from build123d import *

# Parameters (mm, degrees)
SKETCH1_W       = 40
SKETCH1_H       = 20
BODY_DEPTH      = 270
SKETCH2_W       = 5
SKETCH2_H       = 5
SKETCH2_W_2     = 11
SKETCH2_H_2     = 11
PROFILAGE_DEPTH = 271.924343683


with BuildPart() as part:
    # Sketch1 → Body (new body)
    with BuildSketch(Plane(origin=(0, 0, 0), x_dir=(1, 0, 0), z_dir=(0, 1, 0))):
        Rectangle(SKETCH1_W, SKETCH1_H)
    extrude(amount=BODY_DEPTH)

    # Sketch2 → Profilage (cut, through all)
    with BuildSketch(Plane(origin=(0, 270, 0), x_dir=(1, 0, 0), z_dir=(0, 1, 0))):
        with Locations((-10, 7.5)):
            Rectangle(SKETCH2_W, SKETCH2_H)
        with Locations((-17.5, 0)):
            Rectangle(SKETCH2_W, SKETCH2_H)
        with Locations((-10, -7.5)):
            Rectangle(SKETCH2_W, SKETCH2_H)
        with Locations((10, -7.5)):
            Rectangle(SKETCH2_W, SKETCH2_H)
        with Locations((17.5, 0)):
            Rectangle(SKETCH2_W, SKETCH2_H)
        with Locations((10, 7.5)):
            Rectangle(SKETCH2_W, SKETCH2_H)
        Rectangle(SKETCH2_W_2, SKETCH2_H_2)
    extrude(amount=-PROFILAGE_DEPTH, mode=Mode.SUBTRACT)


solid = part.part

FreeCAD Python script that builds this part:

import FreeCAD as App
import Part
import Sketcher

V = App.Vector
Q = App.Units.Quantity

doc = App.newDocument("Part")
params = doc.addObject("Spreadsheet::Sheet", "Params")
for row, (alias, value) in enumerate([
    ("sketch1_width", "40 mm"),
    ("sketch1_height", "20 mm"),
    ("pad1_length", "270 mm"),
    ("sketch2_width", "5 mm"),
    ("sketch2_width2", "11 mm"),
], start=1):
    params.set(f"A{row}", alias)
    params.set(f"B{row}", "=" + value)
    params.setAlias(f"B{row}", alias)

body = doc.addObject("PartDesign::Body", "Body")

# Sketch on XZ plane
sketch1 = doc.addObject("Sketcher::SketchObject", "Sketch")
body.addObject(sketch1)
sketch1.AttachmentSupport = (doc.XZ_Plane, [""])
sketch1.MapMode = "FlatFace"
sketch1.addGeometry(Part.LineSegment(V(-20, -10, 0), V(-20, 10, 0)), False)
sketch1.addGeometry(Part.LineSegment(V(-20, 10, 0), V(20, 10, 0)), False)
sketch1.addGeometry(Part.LineSegment(V(20, 10, 0), V(20, -10, 0)), False)
sketch1.addGeometry(Part.LineSegment(V(20, -10, 0), V(-20, -10, 0)), False)
sketch1.addConstraint(Sketcher.Constraint("Coincident", 0, 2, 1, 1))
sketch1.addConstraint(Sketcher.Constraint("Coincident", 1, 2, 2, 1))
sketch1.addConstraint(Sketcher.Constraint("Coincident", 2, 2, 3, 1))
sketch1.addConstraint(Sketcher.Constraint("Coincident", 3, 2, 0, 1))
sketch1.addConstraint(Sketcher.Constraint("Vertical", 0))
sketch1.addConstraint(Sketcher.Constraint("Horizontal", 1))
sketch1.addConstraint(Sketcher.Constraint("Vertical", 2))
sketch1.addConstraint(Sketcher.Constraint("Horizontal", 3))
sketch1.addConstraint(Sketcher.Constraint("Symmetric", 0, 2, 2, 2, -1, 1))
sketch1.addConstraint(Sketcher.Constraint("DistanceX", 1, 1, 1, 2, Q("40 mm")))
sketch1.addConstraint(Sketcher.Constraint("DistanceY", 0, 1, 0, 2, Q("20 mm")))
sketch1.setExpression("Constraints[9]", "Params.sketch1_width")
sketch1.setExpression("Constraints[10]", "Params.sketch1_height")
pad1 = doc.addObject("PartDesign::Pad", "Pad")
body.addObject(pad1)
pad1.Profile = sketch1
pad1.setExpression("Length", "Params.pad1_length")
pad1.Reversed = True

# Sketch on XZ plane
sketch2 = doc.addObject("Sketcher::SketchObject", "Sketch001")
body.addObject(sketch2)
sketch2.AttachmentSupport = (doc.XZ_Plane, [""])
sketch2.MapMode = "FlatFace"
sketch2.AttachmentOffset = App.Placement(V(0, 0, -270), App.Rotation())
sketch2.addGeometry(Part.LineSegment(V(-12, -10, 0), V(-12, -5, 0)), False)
sketch2.addGeometry(Part.LineSegment(V(-12, -5, 0), V(-8, -5, 0)), False)
sketch2.addGeometry(Part.LineSegment(V(-8, -5, 0), V(-8, -10, 0)), False)
sketch2.addGeometry(Part.LineSegment(V(-8, -10, 0), V(-12, -10, 0)), False)
sketch2.addGeometry(Part.LineSegment(V(-20, -2, 0), V(-20, 2, 0)), False)
sketch2.addGeometry(Part.LineSegment(V(-20, 2, 0), V(-15, 2, 0)), False)
sketch2.addGeometry(Part.LineSegment(V(-15, 2, 0), V(-15, -2, 0)), False)
sketch2.addGeometry(Part.LineSegment(V(-15, -2, 0), V(-20, -2, 0)), False)
sketch2.addGeometry(Part.LineSegment(V(-12, 5, 0), V(-12, 10, 0)), False)
sketch2.addGeometry(Part.LineSegment(V(-12, 10, 0), V(-8, 10, 0)), False)
sketch2.addGeometry(Part.LineSegment(V(-8, 10, 0), V(-8, 5, 0)), False)
sketch2.addGeometry(Part.LineSegment(V(-8, 5, 0), V(-12, 5, 0)), False)
sketch2.addGeometry(Part.LineSegment(V(8, 5, 0), V(8, 10, 0)), False)
sketch2.addGeometry(Part.LineSegment(V(8, 10, 0), V(12, 10, 0)), False)
sketch2.addGeometry(Part.LineSegment(V(12, 10, 0), V(12, 5, 0)), False)
sketch2.addGeometry(Part.LineSegment(V(12, 5, 0), V(8, 5, 0)), False)
sketch2.addGeometry(Part.LineSegment(V(15, -2, 0), V(15, 2, 0)), False)
sketch2.addGeometry(Part.LineSegment(V(15, 2, 0), V(20, 2, 0)), False)
sketch2.addGeometry(Part.LineSegment(V(20, 2, 0), V(20, -2, 0)), False)
sketch2.addGeometry(Part.LineSegment(V(20, -2, 0), V(15, -2, 0)), False)
sketch2.addGeometry(Part.LineSegment(V(8, -10, 0), V(8, -5, 0)), False)
sketch2.addGeometry(Part.LineSegment(V(8, -5, 0), V(12, -5, 0)), False)
sketch2.addGeometry(Part.LineSegment(V(12, -5, 0), V(12, -10, 0)), False)
sketch2.addGeometry(Part.LineSegment(V(12, -10, 0), V(8, -10, 0)), False)
sketch2.addGeometry(Part.LineSegment(V(-6, -6, 0), V(-6, 6, 0)), False)
sketch2.addGeometry(Part.LineSegment(V(-6, 6, 0), V(6, 6, 0)), False)
sketch2.addGeometry(Part.LineSegment(V(6, 6, 0), V(6, -6, 0)), False)
sketch2.addGeometry(Part.LineSegment(V(6, -6, 0), V(-6, -6, 0)), False)
sketch2.addConstraint(Sketcher.Constraint("Coincident", 0, 2, 1, 1))
sketch2.addConstraint(Sketcher.Constraint("Coincident", 1, 2, 2, 1))
sketch2.addConstraint(Sketcher.Constraint("Coincident", 2, 2, 3, 1))
sketch2.addConstraint(Sketcher.Constraint("Coincident", 3, 2, 0, 1))
sketch2.addConstraint(Sketcher.Constraint("Coincident", 4, 2, 5, 1))
sketch2.addConstraint(Sketcher.Constraint("Coincident", 5, 2, 6, 1))
sketch2.addConstraint(Sketcher.Constraint("Coincident", 6, 2, 7, 1))
sketch2.addConstraint(Sketcher.Constraint("Coincident", 7, 2, 4, 1))
sketch2.addConstraint(Sketcher.Constraint("Coincident", 8, 2, 9, 1))
sketch2.addConstraint(Sketcher.Constraint("Coincident", 9, 2, 10, 1))
sketch2.addConstraint(Sketcher.Constraint("Coincident", 10, 2, 11, 1))
sketch2.addConstraint(Sketcher.Constraint("Coincident", 11, 2, 8, 1))
sketch2.addConstraint(Sketcher.Constraint("Coincident", 12, 2, 13, 1))
sketch2.addConstraint(Sketcher.Constraint("Coincident", 13, 2, 14, 1))
sketch2.addConstraint(Sketcher.Constraint("Coincident", 14, 2, 15, 1))
sketch2.addConstraint(Sketcher.Constraint("Coincident", 15, 2, 12, 1))
sketch2.addConstraint(Sketcher.Constraint("Coincident", 16, 2, 17, 1))
sketch2.addConstraint(Sketcher.Constraint("Coincident", 17, 2, 18, 1))
sketch2.addConstraint(Sketcher.Constraint("Coincident", 18, 2, 19, 1))
sketch2.addConstraint(Sketcher.Constraint("Coincident", 19, 2, 16, 1))
sketch2.addConstraint(Sketcher.Constraint("Coincident", 20, 2, 21, 1))
sketch2.addConstraint(Sketcher.Constraint("Coincident", 21, 2, 22, 1))
sketch2.addConstraint(Sketcher.Constraint("Coincident", 22, 2, 23, 1))
sketch2.addConstraint(Sketcher.Constraint("Coincident", 23, 2, 20, 1))
sketch2.addConstraint(Sketcher.Constraint("Coincident", 24, 2, 25, 1))
sketch2.addConstraint(Sketcher.Constraint("Coincident", 25, 2, 26, 1))
sketch2.addConstraint(Sketcher.Constraint("Coincident", 26, 2, 27, 1))
sketch2.addConstraint(Sketcher.Constraint("Coincident", 27, 2, 24, 1))
sketch2.addConstraint(Sketcher.Constraint("Vertical", 0))
sketch2.addConstraint(Sketcher.Constraint("Horizontal", 1))
sketch2.addConstraint(Sketcher.Constraint("Vertical", 2))
sketch2.addConstraint(Sketcher.Constraint("Horizontal", 3))
sketch2.addConstraint(Sketcher.Constraint("Vertical", 4))
sketch2.addConstraint(Sketcher.Constraint("Horizontal", 5))
sketch2.addConstraint(Sketcher.Constraint("Vertical", 6))
sketch2.addConstraint(Sketcher.Constraint("Horizontal", 7))
sketch2.addConstraint(Sketcher.Constraint("Vertical", 8))
sketch2.addConstraint(Sketcher.Constraint("Horizontal", 9))
sketch2.addConstraint(Sketcher.Constraint("Vertical", 10))
sketch2.addConstraint(Sketcher.Constraint("Horizontal", 11))
sketch2.addConstraint(Sketcher.Constraint("Vertical", 12))
sketch2.addConstraint(Sketcher.Constraint("Horizontal", 13))
sketch2.addConstraint(Sketcher.Constraint("Vertical", 14))
sketch2.addConstraint(Sketcher.Constraint("Horizontal", 15))
sketch2.addConstraint(Sketcher.Constraint("Vertical", 16))
sketch2.addConstraint(Sketcher.Constraint("Horizontal", 17))
sketch2.addConstraint(Sketcher.Constraint("Vertical", 18))
sketch2.addConstraint(Sketcher.Constraint("Horizontal", 19))
sketch2.addConstraint(Sketcher.Constraint("Vertical", 20))
sketch2.addConstraint(Sketcher.Constraint("Horizontal", 21))
sketch2.addConstraint(Sketcher.Constraint("Vertical", 22))
sketch2.addConstraint(Sketcher.Constraint("Horizontal", 23))
sketch2.addConstraint(Sketcher.Constraint("Vertical", 24))
sketch2.addConstraint(Sketcher.Constraint("Horizontal", 25))
sketch2.addConstraint(Sketcher.Constraint("Vertical", 26))
sketch2.addConstraint(Sketcher.Constraint("Horizontal", 27))
sketch2.addConstraint(Sketcher.Constraint("Symmetric", 2, 2, 12, 2, -1, 1))
sketch2.addConstraint(Sketcher.Constraint("Symmetric", 0, 2, 14, 2, -1, 1))
sketch2.addConstraint(Sketcher.Constraint("Symmetric", 6, 2, 16, 2, -1, 1))
sketch2.addConstraint(Sketcher.Constraint("Symmetric", 4, 2, 18, 2, -1, 1))
sketch2.addConstraint(Sketcher.Constraint("Symmetric", 10, 2, 20, 2, -1, 1))
sketch2.addConstraint(Sketcher.Constraint("Symmetric", 8, 2, 22, 2, -1, 1))
sketch2.addConstraint(Sketcher.Constraint("Symmetric", 24, 2, 26, 2, -1, 1))
sketch2.addConstraint(Sketcher.Constraint("Symmetric", 9, 2, 12, 2, -2))
sketch2.addConstraint(Sketcher.Constraint("Symmetric", 11, 2, 14, 2, -2))
sketch2.addConstraint(Sketcher.Constraint("Horizontal", 5, 2, 16, 2))
sketch2.addConstraint(Sketcher.Constraint("Equal", 3, 5))
sketch2.addConstraint(Sketcher.Constraint("Equal", 23, 0))
sketch2.addConstraint(Sketcher.Constraint("Equal", 2, 4))
sketch2.addConstraint(Sketcher.Constraint("Equal", 27, 24))
sketch2.addConstraint(Sketcher.Constraint("DistanceX", 1, 1, 1, 2, Q("5 mm")))
sketch2.addConstraint(Sketcher.Constraint("DistanceX", 25, 1, 25, 2, Q("11 mm")))
sketch2.addConstraint(Sketcher.Constraint("DistanceY", 0, 2, -1, 1, Q("5 mm")))
sketch2.addConstraint(Sketcher.Constraint("DistanceX", 4, 2, -1, 1, Q("20 mm")))
sketch2.addConstraint(Sketcher.Constraint("DistanceX", 9, 2, 12, 2, Q("15 mm")))
sketch2.setExpression("Constraints[70]", "Params.sketch2_width")
sketch2.setExpression("Constraints[71]", "Params.sketch2_width2")
pocket1 = doc.addObject("PartDesign::Pocket", "Pocket")
body.addObject(pocket1)
pocket1.Profile = sketch2
pocket1.Type = "ThroughAll"
pocket1.Reversed = True

doc.recompute()
